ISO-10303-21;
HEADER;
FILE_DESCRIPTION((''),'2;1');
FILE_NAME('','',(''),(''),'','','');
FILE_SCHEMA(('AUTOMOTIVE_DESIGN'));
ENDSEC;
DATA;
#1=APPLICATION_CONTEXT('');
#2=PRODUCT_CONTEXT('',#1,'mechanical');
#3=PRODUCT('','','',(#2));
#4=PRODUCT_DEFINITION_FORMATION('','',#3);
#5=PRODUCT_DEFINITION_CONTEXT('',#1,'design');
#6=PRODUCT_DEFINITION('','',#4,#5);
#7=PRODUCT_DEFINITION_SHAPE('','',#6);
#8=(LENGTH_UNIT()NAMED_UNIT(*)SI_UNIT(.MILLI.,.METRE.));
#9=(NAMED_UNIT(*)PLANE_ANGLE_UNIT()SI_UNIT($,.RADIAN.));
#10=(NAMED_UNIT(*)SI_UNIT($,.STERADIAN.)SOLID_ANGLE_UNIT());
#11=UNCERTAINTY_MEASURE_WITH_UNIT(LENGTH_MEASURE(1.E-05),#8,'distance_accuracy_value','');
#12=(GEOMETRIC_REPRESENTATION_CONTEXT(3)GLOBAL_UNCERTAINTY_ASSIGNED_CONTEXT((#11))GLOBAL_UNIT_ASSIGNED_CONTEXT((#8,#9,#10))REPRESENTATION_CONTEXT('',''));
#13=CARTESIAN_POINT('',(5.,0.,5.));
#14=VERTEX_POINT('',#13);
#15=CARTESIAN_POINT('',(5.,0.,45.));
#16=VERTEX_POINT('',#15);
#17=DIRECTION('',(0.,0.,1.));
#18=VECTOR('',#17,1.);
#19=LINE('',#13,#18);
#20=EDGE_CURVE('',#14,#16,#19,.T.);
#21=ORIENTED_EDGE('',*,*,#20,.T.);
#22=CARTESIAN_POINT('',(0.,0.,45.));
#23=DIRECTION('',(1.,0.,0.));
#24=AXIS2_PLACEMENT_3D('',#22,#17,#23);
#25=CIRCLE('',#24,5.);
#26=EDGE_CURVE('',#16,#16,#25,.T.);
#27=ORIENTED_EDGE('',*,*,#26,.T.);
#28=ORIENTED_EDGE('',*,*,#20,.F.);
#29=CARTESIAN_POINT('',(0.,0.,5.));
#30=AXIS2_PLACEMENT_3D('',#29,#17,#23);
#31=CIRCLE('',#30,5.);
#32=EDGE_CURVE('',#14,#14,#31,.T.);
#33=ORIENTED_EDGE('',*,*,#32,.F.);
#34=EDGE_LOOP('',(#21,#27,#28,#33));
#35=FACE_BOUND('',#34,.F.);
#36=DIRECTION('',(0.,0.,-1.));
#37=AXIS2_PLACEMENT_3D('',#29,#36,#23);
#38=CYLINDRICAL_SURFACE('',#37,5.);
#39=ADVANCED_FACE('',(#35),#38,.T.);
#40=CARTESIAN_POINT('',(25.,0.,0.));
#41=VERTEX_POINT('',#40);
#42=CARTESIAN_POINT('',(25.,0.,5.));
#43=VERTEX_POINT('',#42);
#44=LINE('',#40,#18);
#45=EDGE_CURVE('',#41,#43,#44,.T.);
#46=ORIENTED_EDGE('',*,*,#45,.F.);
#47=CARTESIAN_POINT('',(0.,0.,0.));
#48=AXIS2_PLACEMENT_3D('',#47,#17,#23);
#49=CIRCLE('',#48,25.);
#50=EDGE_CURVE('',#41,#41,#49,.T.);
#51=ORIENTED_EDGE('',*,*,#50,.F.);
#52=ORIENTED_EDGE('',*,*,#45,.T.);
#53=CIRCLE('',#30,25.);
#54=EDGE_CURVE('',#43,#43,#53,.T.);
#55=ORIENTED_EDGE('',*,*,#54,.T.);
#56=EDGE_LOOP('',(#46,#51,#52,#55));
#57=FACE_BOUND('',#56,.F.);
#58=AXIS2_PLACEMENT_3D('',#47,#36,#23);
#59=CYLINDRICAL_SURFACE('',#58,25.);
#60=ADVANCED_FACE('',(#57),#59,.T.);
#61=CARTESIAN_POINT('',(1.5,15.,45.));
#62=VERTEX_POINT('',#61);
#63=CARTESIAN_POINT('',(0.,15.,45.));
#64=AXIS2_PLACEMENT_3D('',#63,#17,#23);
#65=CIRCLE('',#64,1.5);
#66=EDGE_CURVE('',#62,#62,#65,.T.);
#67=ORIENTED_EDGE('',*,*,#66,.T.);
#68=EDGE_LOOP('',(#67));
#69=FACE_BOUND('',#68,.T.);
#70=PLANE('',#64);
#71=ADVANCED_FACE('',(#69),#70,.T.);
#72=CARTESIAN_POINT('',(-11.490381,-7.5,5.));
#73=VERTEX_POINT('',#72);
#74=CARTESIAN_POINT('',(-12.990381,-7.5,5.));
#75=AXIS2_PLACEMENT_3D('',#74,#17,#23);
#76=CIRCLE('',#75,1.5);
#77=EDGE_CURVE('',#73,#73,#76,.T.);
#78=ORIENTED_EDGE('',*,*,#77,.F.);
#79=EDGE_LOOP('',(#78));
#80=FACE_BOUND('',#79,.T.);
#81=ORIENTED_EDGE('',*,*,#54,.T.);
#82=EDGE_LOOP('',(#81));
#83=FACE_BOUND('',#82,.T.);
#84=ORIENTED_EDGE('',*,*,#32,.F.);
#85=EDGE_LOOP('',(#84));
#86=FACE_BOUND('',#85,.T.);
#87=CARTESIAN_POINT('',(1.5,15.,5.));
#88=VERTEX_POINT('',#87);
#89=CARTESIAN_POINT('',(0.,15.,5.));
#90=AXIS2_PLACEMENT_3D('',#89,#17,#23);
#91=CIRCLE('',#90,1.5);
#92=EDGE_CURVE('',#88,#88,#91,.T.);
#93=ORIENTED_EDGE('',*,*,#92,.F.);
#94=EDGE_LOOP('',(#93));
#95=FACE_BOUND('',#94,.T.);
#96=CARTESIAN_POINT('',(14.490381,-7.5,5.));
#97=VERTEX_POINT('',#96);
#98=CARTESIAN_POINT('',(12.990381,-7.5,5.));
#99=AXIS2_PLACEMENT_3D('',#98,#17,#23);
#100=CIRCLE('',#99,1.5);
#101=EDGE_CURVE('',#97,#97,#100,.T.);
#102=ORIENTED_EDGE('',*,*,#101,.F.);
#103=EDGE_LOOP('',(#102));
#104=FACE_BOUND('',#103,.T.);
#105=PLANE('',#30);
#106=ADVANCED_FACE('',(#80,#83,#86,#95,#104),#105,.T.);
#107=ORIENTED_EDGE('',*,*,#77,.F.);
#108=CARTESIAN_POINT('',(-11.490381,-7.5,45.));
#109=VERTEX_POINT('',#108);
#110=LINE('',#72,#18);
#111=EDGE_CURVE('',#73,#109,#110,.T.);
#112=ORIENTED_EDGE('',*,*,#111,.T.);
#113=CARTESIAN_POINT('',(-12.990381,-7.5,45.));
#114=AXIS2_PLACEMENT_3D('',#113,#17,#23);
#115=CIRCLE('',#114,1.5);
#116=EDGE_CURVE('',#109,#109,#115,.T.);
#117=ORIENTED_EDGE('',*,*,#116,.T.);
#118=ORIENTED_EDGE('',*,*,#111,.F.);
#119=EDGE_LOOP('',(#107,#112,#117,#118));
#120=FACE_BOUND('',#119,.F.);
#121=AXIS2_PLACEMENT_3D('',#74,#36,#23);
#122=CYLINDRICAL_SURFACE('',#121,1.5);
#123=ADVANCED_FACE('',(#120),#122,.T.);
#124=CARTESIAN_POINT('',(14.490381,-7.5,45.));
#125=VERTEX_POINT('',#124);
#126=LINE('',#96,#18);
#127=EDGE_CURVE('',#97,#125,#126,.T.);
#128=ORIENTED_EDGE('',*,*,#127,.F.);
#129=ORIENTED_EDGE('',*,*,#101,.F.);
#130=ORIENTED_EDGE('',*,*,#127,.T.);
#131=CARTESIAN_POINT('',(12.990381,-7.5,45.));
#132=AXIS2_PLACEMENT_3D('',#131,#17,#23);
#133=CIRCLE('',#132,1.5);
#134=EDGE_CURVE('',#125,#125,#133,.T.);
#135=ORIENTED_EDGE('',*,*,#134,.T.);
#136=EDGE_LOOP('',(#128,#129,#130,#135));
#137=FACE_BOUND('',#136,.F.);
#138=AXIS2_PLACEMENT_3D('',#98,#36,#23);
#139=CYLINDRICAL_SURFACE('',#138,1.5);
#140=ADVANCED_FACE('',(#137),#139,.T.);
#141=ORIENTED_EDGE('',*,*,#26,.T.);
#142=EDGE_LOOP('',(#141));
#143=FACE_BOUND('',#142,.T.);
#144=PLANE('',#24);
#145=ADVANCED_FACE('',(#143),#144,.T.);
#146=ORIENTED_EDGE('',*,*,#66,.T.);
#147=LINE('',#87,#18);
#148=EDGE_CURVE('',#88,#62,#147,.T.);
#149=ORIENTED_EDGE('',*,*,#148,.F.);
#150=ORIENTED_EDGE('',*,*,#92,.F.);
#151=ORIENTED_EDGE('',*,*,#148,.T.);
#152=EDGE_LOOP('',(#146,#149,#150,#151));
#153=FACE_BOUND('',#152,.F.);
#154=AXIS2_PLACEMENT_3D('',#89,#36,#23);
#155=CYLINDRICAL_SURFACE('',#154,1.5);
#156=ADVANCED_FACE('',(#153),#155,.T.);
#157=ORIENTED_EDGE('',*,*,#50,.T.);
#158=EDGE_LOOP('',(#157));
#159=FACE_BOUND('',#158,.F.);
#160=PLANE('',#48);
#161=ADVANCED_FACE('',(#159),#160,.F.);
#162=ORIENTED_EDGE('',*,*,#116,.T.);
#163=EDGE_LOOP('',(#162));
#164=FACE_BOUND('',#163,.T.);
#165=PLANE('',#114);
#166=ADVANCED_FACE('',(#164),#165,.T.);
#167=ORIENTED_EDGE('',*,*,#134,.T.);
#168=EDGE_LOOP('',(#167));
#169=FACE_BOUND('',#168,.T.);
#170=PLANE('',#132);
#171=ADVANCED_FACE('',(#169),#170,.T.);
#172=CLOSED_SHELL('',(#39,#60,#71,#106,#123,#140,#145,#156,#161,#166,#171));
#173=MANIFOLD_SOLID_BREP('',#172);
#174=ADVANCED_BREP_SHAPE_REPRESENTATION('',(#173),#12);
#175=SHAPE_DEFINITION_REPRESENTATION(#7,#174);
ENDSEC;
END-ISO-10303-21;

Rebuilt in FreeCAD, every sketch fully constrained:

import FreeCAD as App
import Part
import Sketcher
Q = App.Units.Quantity

doc = App.newDocument("Part")
params = doc.addObject("Spreadsheet::Sheet", "Params")
for row, (alias, value) in enumerate([
    ("sketch1_diameter", "50 mm"),
    ("pad1_length", "5 mm"),
    ("sketch2_diameter", "10 mm"),
    ("pad2_length", "40 mm"),
    ("sketch3_diameter", "3 mm"),
    ("pad3_length", "40 mm"),
], start=1):
    params.set(f"A{row}", alias)
    params.set(f"B{row}", "=" + value)
    params.setAlias(f"B{row}", alias)

body = doc.addObject("PartDesign::Body", "Body")

sketch1 = body.newObject("Sketcher::SketchObject", "Sketch")
sketch1.AttachmentSupport = (doc.getObject("XY_Plane"), [""])
sketch1.MapMode = "FlatFace"
sketch1.addGeometry(Part.Circle(App.Vector(0, 0, 0), App.Vector(0, 0, 1), 25), False)
sketch1.addConstraint([
    Sketcher.Constraint("Coincident", 0, 3, -1, 1),
    Sketcher.Constraint("Diameter", 0, Q("50 mm")),
])
sketch1.setExpression("Constraints[1]", "Params.sketch1_diameter")
pad1 = body.newObject("PartDesign::Pad", "Pad")
pad1.Profile = sketch1
pad1.setExpression("Length", "Params.pad1_length")

sketch2 = body.newObject("Sketcher::SketchObject", "Sketch001")
sketch2.AttachmentSupport = (doc.getObject("XY_Plane"), [""])
sketch2.MapMode = "FlatFace"
sketch2.AttachmentOffset = App.Placement(App.Vector(0, 0, 5), App.Rotation())
sketch2.addGeometry(Part.Circle(App.Vector(0, 0, 0), App.Vector(0, 0, 1), 5), False)
sketch2.addConstraint([
    Sketcher.Constraint("Coincident", 0, 3, -1, 1),
    Sketcher.Constraint("Diameter", 0, Q("10 mm")),
])
sketch2.setExpression("Constraints[1]", "Params.sketch2_diameter")
pad2 = body.newObject("PartDesign::Pad", "Pad001")
pad2.Profile = sketch2
pad2.setExpression("Length", "Params.pad2_length")

sketch3 = body.newObject("Sketcher::SketchObject", "Sketch002")
sketch3.AttachmentSupport = (doc.getObject("XY_Plane"), [""])
sketch3.MapMode = "FlatFace"
sketch3.AttachmentOffset = App.Placement(App.Vector(0, 0, 5), App.Rotation())
sketch3.addGeometry([
    Part.Circle(App.Vector(0, 15, 0), App.Vector(0, 0, 1), 1.5),
    Part.Circle(App.Vector(12.990381, -7.5, 0), App.Vector(0, 0, 1), 1.5),
    Part.Circle(App.Vector(-12.990381, -7.5, 0), App.Vector(0, 0, 1), 1.5),
], False)
sketch3.addConstraint([
    Sketcher.Constraint("Equal", 0, 1),
    Sketcher.Constraint("Equal", 1, 2),
    Sketcher.Constraint("Symmetric", 1, 3, 2, 3, -2),
    Sketcher.Constraint("PointOnObject", 0, 3, -2),
    Sketcher.Constraint("Diameter", 0, Q("3 mm")),
    Sketcher.Constraint("DistanceY", -1, 1, 0, 3, Q("15 mm")),
    Sketcher.Constraint("DistanceY", 1, 3, -1, 1, Q("7.5 mm")),
    Sketcher.Constraint("DistanceX", -1, 1, 1, 3, Q("12.990381 mm")),
])
sketch3.setExpression("Constraints[4]", "Params.sketch3_diameter")
pad3 = body.newObject("PartDesign::Pad", "Pad002")
pad3.Profile = sketch3
pad3.setExpression("Length", "Params.pad3_length")

doc.recompute()
